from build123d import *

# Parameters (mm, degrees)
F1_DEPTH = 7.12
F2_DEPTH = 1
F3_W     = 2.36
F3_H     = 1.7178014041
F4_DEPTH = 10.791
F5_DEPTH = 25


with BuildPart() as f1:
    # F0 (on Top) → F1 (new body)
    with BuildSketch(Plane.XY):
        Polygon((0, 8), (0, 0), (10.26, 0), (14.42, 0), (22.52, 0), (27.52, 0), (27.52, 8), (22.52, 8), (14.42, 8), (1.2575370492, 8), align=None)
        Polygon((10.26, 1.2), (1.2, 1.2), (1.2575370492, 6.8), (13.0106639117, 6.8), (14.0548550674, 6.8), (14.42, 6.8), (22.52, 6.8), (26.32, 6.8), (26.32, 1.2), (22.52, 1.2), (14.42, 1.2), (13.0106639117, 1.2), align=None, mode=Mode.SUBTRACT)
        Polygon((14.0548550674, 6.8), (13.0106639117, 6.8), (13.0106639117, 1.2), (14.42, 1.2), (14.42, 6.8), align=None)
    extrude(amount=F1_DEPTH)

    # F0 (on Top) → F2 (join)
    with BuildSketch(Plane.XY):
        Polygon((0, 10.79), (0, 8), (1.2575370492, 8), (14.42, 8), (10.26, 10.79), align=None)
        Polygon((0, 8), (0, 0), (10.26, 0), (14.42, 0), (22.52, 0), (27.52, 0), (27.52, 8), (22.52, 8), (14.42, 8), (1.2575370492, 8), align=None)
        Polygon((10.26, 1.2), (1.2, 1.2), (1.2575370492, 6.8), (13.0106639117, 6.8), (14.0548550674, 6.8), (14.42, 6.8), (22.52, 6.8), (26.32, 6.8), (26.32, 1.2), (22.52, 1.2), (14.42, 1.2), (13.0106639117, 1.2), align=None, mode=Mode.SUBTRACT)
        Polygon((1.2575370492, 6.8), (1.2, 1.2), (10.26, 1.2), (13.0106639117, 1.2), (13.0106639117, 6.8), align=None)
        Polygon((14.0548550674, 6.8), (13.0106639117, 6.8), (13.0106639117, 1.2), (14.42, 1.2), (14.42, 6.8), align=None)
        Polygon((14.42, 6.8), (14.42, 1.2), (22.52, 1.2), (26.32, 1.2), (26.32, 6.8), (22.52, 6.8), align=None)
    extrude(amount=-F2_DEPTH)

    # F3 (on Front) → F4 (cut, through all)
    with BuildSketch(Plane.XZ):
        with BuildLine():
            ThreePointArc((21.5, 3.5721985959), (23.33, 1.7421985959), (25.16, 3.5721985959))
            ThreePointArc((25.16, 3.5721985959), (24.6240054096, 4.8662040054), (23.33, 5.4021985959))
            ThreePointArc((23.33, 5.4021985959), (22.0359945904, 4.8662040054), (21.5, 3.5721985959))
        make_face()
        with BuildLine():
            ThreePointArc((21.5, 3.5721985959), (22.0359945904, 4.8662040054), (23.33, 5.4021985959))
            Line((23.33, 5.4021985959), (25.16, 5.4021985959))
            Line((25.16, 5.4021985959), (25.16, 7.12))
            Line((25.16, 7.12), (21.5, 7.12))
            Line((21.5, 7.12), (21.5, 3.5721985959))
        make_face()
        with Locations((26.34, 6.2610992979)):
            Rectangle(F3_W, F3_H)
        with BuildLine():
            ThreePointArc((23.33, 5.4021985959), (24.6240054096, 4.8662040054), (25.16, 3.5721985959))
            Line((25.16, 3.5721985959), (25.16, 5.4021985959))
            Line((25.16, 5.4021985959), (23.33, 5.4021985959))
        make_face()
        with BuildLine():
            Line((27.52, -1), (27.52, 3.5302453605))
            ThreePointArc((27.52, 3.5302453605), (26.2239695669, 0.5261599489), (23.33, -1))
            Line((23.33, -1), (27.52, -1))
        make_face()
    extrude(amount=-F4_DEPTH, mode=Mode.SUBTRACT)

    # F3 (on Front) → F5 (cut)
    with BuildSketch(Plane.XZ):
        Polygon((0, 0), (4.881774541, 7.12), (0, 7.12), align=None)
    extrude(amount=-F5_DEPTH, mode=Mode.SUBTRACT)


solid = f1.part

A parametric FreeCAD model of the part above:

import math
import FreeCAD as App
import Part
import Sketcher
from FreeCAD import Vector


def add_polygon(sketch, points):
    """Adds a closed chain of lines whose ends are joined by coincident constraints."""
    first, n = sketch.GeometryCount, len(points)
    for a, b in zip(points, points[1:] + points[:1]):
        sketch.addGeometry(Part.LineSegment(App.Vector(*a, 0), App.Vector(*b, 0)), False)
    for i in range(n):
        sketch.addConstraint(Sketcher.Constraint("Coincident", first + i, 2, first + (i + 1) % n, 1))

doc = App.newDocument("Part")
params = doc.addObject("Spreadsheet::Sheet", "Params")
for row, (alias, value) in enumerate([
    ("sketch1_height", "8 mm"),
    ("sketch1_width", "11.9 mm"),
    ("sketch1_height2", "5.6 mm"),
    ("sketch1_width2", "27.52 mm"),
    ("pad1_length", "7.12 mm"),
    ("sketch2_height", "8 mm"),
    ("sketch2_width", "13.1 mm"),
    ("sketch2_width2", "27.52 mm"),
    ("sketch2_width3", "10.26 mm"),
    ("sketch2_height2", "10.79 mm"),
    ("pad2_length", "1 mm"),
    ("sketch3_radius", "1.83 mm"),
    ("sketch3_width", "2.36 mm"),
    ("sketch3_height", "1.83 mm"),
    ("sketch4_height", "7.12 mm"),
    ("pocket2_length", "25 mm"),
], start=1):
    params.set(f"A{row}", alias)
    params.set(f"B{row}", "=" + value)
    params.setAlias(f"B{row}", alias)

body = doc.addObject("PartDesign::Body", "Body")

# Sketch on XY plane
sketch1 = doc.addObject("Sketcher::SketchObject", "Sketch")
body.addObject(sketch1)
sketch1.AttachmentSupport = (doc.XY_Plane, [""])
sketch1.MapMode = "FlatFace"
add_polygon(sketch1, [(0, 8), (0, 0), (27.52, 0), (27.52, 8)])  # lines 0-3
add_polygon(sketch1, [(26.32, 1.2), (14.42, 1.2), (14.42, 6.8), (26.32, 6.8)])  # lines 4-7
add_polygon(sketch1, [(13.010664, 1.2), (1.2, 1.2), (1.257537, 6.8), (13.010664, 6.8)])  # lines 8-11
sketch1.addConstraint([
    Sketcher.Constraint("Vertical", 0),
    Sketcher.Constraint("Horizontal", 1),
    Sketcher.Constraint("Vertical", 2),
    Sketcher.Constraint("Horizontal", 3),
    Sketcher.Constraint("Horizontal", 4),
    Sketcher.Constraint("Vertical", 5),
    Sketcher.Constraint("Horizontal", 6),
    Sketcher.Constraint("Vertical", 7),
    Sketcher.Constraint("Horizontal", 8),
    Sketcher.Constraint("Horizontal", 10),
    Sketcher.Constraint("Vertical", 11),
    Sketcher.Constraint("Coincident", 0, 2, -1, 1),
    Sketcher.Constraint("Horizontal", 7, 2, 8, 2),
    Sketcher.Constraint("Horizontal", 6, 2, 9, 2),
    Sketcher.Constraint("DistanceY", 0, 2, 0, 1, 8.0),
    Sketcher.Constraint("DistanceX", 4, 2, 4, 1, 11.9),
    Sketcher.Constraint("DistanceY", 5, 1, 5, 2, 5.6),
    Sketcher.Constraint("DistanceX", 1, 1, 1, 2, 27.52),
    Sketcher.Constraint("DistanceY", -1, 1, 4, 2, 1.2),
    Sketcher.Constraint("DistanceX", -1, 1, 8, 2, 1.2),
    Sketcher.Constraint("DistanceX", 4, 2, 1, 2, 13.1),
    Sketcher.Constraint("DistanceX", 8, 2, 8, 1, 11.810664),
    Sketcher.Constraint("DistanceX", 10, 1, 10, 2, 11.753127),
])
sketch1.setExpression("Constraints[26]", "Params.sketch1_height")
sketch1.setExpression("Constraints[27]", "Params.sketch1_width")
sketch1.setExpression("Constraints[28]", "Params.sketch1_height2")
sketch1.setExpression("Constraints[29]", "Params.sketch1_width2")
pad1 = doc.addObject("PartDesign::Pad", "Pad")
body.addObject(pad1)
pad1.Profile = sketch1
pad1.setExpression("Length", "Params.pad1_length")

# Sketch on XY plane
sketch2 = doc.addObject("Sketcher::SketchObject", "Sketch001")
body.addObject(sketch2)
sketch2.AttachmentSupport = (doc.XY_Plane, [""])
sketch2.MapMode = "FlatFace"
add_polygon(sketch2, [(0, 10.79), (0, 0), (27.52, 0), (27.52, 8), (14.42, 8), (10.26, 10.79)])  # lines 0-5
sketch2.addConstraint([
    Sketcher.Constraint("Vertical", 0),
    Sketcher.Constraint("Horizontal", 1),
    Sketcher.Constraint("Vertical", 2),
    Sketcher.Constraint("Horizontal", 3),
    Sketcher.Constraint("Horizontal", 5),
    Sketcher.Constraint("Coincident", 0, 2, -1, 1),
    Sketcher.Constraint("DistanceY", 2, 1, 2, 2, 8.0),
    Sketcher.Constraint("DistanceX", 3, 2, 3, 1, 13.1),
    Sketcher.Constraint("DistanceX", 1, 1, 1, 2, 27.52),
    Sketcher.Constraint("DistanceX", 5, 2, 5, 1, 10.26),
    Sketcher.Constraint("DistanceY", 0, 2, 0, 1, 10.79),
])
sketch2.setExpression("Constraints[12]", "Params.sketch2_height")
sketch2.setExpression("Constraints[13]", "Params.sketch2_width")
sketch2.setExpression("Constraints[14]", "Params.sketch2_width2")
sketch2.setExpression("Constraints[15]", "Params.sketch2_width3")
sketch2.setExpression("Constraints[16]", "Params.sketch2_height2")
pad2 = doc.addObject("PartDesign::Pad", "Pad001")
body.addObject(pad2)
pad2.Profile = sketch2
pad2.setExpression("Length", "Params.pad2_length")
pad2.Reversed = True

# Sketch on XZ plane
sketch3 = doc.addObject("Sketcher::SketchObject", "Sketch002")
body.addObject(sketch3)
sketch3.AttachmentSupport = (doc.XZ_Plane, [""])
sketch3.MapMode = "FlatFace"
sketch3.addGeometry([
    Part.ArcOfCircle(Part.Circle(Vector(23.33, 3.572199, 0), Vector(0, 0, 1), 1.83), math.radians(180), math.radians(360)),  # 0
    Part.LineSegment(Vector(25.16, 3.572199, 0), Vector(25.16, 5.402199, 0)),  # 1
    Part.LineSegment(Vector(25.16, 5.402199, 0), Vector(27.52, 5.402199, 0)),  # 2
    Part.LineSegment(Vector(27.52, 5.402199, 0), Vector(27.52, 7.12, 0)),  # 3
    Part.LineSegment(Vector(27.52, 7.12, 0), Vector(25.16, 7.12, 0)),  # 4
    Part.LineSegment(Vector(25.16, 7.12, 0), Vector(21.5, 7.12, 0)),  # 5
    Part.LineSegment(Vector(21.5, 7.12, 0), Vector(21.5, 3.572199, 0)),  # 6
    Part.LineSegment(Vector(27.52, -1, 0), Vector(27.52, 3.530245, 0)),  # 7
    Part.ArcOfCircle(Part.Circle(Vector(22.613611, 3.865361, 0), Vector(0, 0, 1), 4.91782), math.radians(-81.623802), math.radians(-3.907347)),  # 8
    Part.LineSegment(Vector(23.33, -1, 0), Vector(27.52, -1, 0)),  # 9
], False)
sketch3.addConstraint([
    Sketcher.Constraint("Tangent", 0, 2, 1, 1),
    Sketcher.Constraint("Coincident", 1, 2, 2, 1),
    Sketcher.Constraint("Coincident", 2, 2, 3, 1),
    Sketcher.Constraint("Coincident", 3, 2, 4, 1),
    Sketcher.Constraint("Coincident", 4, 2, 5, 1),
    Sketcher.Constraint("Coincident", 5, 2, 6, 1),
    Sketcher.Constraint("Tangent", 6, 2, 0, 1),
    Sketcher.Constraint("Coincident", 7, 2, 8, 2),
    Sketcher.Constraint("Coincident", 8, 1, 9, 1),
    Sketcher.Constraint("Coincident", 9, 2, 7, 1),
    Sketcher.Constraint("Vertical", 1),
    Sketcher.Constraint("Horizontal", 2),
    Sketcher.Constraint("Vertical", 3),
    Sketcher.Constraint("Horizontal", 4),
    Sketcher.Constraint("Horizontal", 5),
    Sketcher.Constraint("Vertical", 6),
    Sketcher.Constraint("Vertical", 7),
    Sketcher.Constraint("Horizontal", 9),
    Sketcher.Constraint("Vertical", 1, 2, 4, 2),
    Sketcher.Constraint("Vertical", 3, 2, 7, 2),
    Sketcher.Constraint("Vertical", 0, 3, 8, 1),
    Sketcher.Constraint("Radius", 0, 1.83),
    Sketcher.Constraint("DistanceY", 8, 1, -1, 1, 1.0),
    Sketcher.Constraint("DistanceX", 2, 1, 2, 2, 2.36),
    Sketcher.Constraint("DistanceY", 1, 1, 1, 2, 1.83),
    Sketcher.Constraint("DistanceX", -1, 1, 5, 2, 21.5),
    Sketcher.Constraint("DistanceY", -1, 1, 3, 2, 7.12),
    Sketcher.Constraint("Radius", 8, 4.91782),
    Sketcher.Constraint("DistanceY", 3, 1, 3, 2, 1.717801),
    Sketcher.Constraint("DistanceY", 7, 1, 7, 2, 4.530245),
])
sketch3.setExpression("Constraints[21]", "Params.sketch3_radius")
sketch3.setExpression("Constraints[23]", "Params.sketch3_width")
sketch3.setExpression("Constraints[24]", "Params.sketch3_height")
pocket1 = doc.addObject("PartDesign::Pocket", "Pocket")
body.addObject(pocket1)
pocket1.Profile = sketch3
pocket1.Type = "ThroughAll"

# Sketch on XZ plane
sketch4 = doc.addObject("Sketcher::SketchObject", "Sketch003")
body.addObject(sketch4)
sketch4.AttachmentSupport = (doc.XZ_Plane, [""])
sketch4.MapMode = "FlatFace"
add_polygon(sketch4, [(0, 0), (4.881775, 7.12), (0, 7.12)])  # lines 0-2
sketch4.addConstraint([
    Sketcher.Constraint("Horizontal", 1),
    Sketcher.Constraint("Vertical", 2),
    Sketcher.Constraint("Coincident", 2, 2, -1, 1),
    Sketcher.Constraint("DistanceY", 2, 2, 2, 1, 7.12),
    Sketcher.Constraint("Distance", 0, 8.632851),
])
sketch4.setExpression("Constraints[6]", "Params.sketch4_height")
pocket2 = doc.addObject("PartDesign::Pocket", "Pocket001")
body.addObject(pocket2)
pocket2.Profile = sketch4
pocket2.setExpression("Length", "Params.pocket2_length")

doc.recompute()
